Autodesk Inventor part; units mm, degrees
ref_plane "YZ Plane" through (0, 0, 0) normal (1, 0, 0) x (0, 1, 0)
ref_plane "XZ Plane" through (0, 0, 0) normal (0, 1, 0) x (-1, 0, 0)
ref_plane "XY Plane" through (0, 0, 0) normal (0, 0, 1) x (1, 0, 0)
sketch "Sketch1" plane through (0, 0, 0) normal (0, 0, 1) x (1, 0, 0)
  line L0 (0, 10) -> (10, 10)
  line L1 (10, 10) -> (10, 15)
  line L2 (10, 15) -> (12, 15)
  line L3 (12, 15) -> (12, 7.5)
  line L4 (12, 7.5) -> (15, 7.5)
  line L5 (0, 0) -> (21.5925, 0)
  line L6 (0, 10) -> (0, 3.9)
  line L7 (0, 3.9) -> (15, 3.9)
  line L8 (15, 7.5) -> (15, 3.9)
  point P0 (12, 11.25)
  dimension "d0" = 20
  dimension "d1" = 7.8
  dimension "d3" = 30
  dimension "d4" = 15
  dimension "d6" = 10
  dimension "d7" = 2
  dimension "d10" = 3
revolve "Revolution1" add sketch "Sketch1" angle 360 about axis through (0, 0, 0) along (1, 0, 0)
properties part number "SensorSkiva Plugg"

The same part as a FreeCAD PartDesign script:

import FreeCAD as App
import Part
import Sketcher
from FreeCAD import Vector
Q = App.Units.Quantity

doc = App.newDocument("Part")
body = doc.addObject("PartDesign::Body", "Body")

sketch1 = doc.addObject("Sketcher::SketchObject", "Sketch")
body.addObject(sketch1)
sketch1.AttachmentSupport = (doc.XY_Plane, [""])
sketch1.MapMode = "FlatFace"
sketch1.addGeometry(Part.LineSegment(Vector(10, 10, 0), Vector(0, 10, 0)), False)
sketch1.addGeometry(Part.LineSegment(Vector(0, 10, 0), Vector(0, 3.9, 0)), False)
sketch1.addGeometry(Part.LineSegment(Vector(0, 3.9, 0), Vector(15, 3.9, 0)), False)
sketch1.addGeometry(Part.LineSegment(Vector(15, 3.9, 0), Vector(15, 7.5, 0)), False)
sketch1.addGeometry(Part.LineSegment(Vector(15, 7.5, 0), Vector(12, 7.5, 0)), False)
sketch1.addGeometry(Part.LineSegment(Vector(12, 7.5, 0), Vector(12, 15, 0)), False)
sketch1.addGeometry(Part.LineSegment(Vector(12, 15, 0), Vector(10, 15, 0)), False)
sketch1.addGeometry(Part.LineSegment(Vector(10, 15, 0), Vector(10, 10, 0)), False)
sketch1.addConstraint(Sketcher.Constraint("Coincident", 0, 2, 1, 1))
sketch1.addConstraint(Sketcher.Constraint("Coincident", 1, 2, 2, 1))
sketch1.addConstraint(Sketcher.Constraint("Coincident", 2, 2, 3, 1))
sketch1.addConstraint(Sketcher.Constraint("Coincident", 3, 2, 4, 1))
sketch1.addConstraint(Sketcher.Constraint("Coincident", 4, 2, 5, 1))
sketch1.addConstraint(Sketcher.Constraint("Coincident", 5, 2, 6, 1))
sketch1.addConstraint(Sketcher.Constraint("Coincident", 6, 2, 7, 1))
sketch1.addConstraint(Sketcher.Constraint("Coincident", 7, 2, 0, 1))
sketch1.addConstraint(Sketcher.Constraint("Horizontal", 0))
sketch1.addConstraint(Sketcher.Constraint("Vertical", 1))
sketch1.addConstraint(Sketcher.Constraint("Horizontal", 2))
sketch1.addConstraint(Sketcher.Constraint("Vertical", 3))
sketch1.addConstraint(Sketcher.Constraint("Horizontal", 4))
sketch1.addConstraint(Sketcher.Constraint("Vertical", 5))
sketch1.addConstraint(Sketcher.Constraint("Horizontal", 6))
sketch1.addConstraint(Sketcher.Constraint("Vertical", 7))
sketch1.addConstraint(Sketcher.Constraint("PointOnObject", 0, 2, -2))
sketch1.addConstraint(Sketcher.Constraint("DistanceX", 0, 2, 0, 1, Q("10 mm")))
sketch1.addConstraint(Sketcher.Constraint("DistanceX", 2, 1, 2, 2, Q("15 mm")))
sketch1.addConstraint(Sketcher.Constraint("DistanceX", 4, 2, 4, 1, Q("3 mm")))
sketch1.addConstraint(Sketcher.Constraint("DistanceY", -1, 1, 0, 2, Q("10 mm")))
sketch1.addConstraint(Sketcher.Constraint("DistanceY", -1, 1, 5, 2, Q("15 mm")))
sketch1.addConstraint(Sketcher.Constraint("DistanceY", 1, 2, 1, 1, Q("6.1 mm")))
sketch1.addConstraint(Sketcher.Constraint("DistanceY", 3, 1, 3, 2, Q("3.6 mm")))
revolution = doc.addObject("PartDesign::Revolution", "Revolution")
body.addObject(revolution)
revolution.Profile = sketch1
revolution.ReferenceAxis = (sketch1, ["H_Axis"])
revolution.Angle = 360

doc.recompute()
